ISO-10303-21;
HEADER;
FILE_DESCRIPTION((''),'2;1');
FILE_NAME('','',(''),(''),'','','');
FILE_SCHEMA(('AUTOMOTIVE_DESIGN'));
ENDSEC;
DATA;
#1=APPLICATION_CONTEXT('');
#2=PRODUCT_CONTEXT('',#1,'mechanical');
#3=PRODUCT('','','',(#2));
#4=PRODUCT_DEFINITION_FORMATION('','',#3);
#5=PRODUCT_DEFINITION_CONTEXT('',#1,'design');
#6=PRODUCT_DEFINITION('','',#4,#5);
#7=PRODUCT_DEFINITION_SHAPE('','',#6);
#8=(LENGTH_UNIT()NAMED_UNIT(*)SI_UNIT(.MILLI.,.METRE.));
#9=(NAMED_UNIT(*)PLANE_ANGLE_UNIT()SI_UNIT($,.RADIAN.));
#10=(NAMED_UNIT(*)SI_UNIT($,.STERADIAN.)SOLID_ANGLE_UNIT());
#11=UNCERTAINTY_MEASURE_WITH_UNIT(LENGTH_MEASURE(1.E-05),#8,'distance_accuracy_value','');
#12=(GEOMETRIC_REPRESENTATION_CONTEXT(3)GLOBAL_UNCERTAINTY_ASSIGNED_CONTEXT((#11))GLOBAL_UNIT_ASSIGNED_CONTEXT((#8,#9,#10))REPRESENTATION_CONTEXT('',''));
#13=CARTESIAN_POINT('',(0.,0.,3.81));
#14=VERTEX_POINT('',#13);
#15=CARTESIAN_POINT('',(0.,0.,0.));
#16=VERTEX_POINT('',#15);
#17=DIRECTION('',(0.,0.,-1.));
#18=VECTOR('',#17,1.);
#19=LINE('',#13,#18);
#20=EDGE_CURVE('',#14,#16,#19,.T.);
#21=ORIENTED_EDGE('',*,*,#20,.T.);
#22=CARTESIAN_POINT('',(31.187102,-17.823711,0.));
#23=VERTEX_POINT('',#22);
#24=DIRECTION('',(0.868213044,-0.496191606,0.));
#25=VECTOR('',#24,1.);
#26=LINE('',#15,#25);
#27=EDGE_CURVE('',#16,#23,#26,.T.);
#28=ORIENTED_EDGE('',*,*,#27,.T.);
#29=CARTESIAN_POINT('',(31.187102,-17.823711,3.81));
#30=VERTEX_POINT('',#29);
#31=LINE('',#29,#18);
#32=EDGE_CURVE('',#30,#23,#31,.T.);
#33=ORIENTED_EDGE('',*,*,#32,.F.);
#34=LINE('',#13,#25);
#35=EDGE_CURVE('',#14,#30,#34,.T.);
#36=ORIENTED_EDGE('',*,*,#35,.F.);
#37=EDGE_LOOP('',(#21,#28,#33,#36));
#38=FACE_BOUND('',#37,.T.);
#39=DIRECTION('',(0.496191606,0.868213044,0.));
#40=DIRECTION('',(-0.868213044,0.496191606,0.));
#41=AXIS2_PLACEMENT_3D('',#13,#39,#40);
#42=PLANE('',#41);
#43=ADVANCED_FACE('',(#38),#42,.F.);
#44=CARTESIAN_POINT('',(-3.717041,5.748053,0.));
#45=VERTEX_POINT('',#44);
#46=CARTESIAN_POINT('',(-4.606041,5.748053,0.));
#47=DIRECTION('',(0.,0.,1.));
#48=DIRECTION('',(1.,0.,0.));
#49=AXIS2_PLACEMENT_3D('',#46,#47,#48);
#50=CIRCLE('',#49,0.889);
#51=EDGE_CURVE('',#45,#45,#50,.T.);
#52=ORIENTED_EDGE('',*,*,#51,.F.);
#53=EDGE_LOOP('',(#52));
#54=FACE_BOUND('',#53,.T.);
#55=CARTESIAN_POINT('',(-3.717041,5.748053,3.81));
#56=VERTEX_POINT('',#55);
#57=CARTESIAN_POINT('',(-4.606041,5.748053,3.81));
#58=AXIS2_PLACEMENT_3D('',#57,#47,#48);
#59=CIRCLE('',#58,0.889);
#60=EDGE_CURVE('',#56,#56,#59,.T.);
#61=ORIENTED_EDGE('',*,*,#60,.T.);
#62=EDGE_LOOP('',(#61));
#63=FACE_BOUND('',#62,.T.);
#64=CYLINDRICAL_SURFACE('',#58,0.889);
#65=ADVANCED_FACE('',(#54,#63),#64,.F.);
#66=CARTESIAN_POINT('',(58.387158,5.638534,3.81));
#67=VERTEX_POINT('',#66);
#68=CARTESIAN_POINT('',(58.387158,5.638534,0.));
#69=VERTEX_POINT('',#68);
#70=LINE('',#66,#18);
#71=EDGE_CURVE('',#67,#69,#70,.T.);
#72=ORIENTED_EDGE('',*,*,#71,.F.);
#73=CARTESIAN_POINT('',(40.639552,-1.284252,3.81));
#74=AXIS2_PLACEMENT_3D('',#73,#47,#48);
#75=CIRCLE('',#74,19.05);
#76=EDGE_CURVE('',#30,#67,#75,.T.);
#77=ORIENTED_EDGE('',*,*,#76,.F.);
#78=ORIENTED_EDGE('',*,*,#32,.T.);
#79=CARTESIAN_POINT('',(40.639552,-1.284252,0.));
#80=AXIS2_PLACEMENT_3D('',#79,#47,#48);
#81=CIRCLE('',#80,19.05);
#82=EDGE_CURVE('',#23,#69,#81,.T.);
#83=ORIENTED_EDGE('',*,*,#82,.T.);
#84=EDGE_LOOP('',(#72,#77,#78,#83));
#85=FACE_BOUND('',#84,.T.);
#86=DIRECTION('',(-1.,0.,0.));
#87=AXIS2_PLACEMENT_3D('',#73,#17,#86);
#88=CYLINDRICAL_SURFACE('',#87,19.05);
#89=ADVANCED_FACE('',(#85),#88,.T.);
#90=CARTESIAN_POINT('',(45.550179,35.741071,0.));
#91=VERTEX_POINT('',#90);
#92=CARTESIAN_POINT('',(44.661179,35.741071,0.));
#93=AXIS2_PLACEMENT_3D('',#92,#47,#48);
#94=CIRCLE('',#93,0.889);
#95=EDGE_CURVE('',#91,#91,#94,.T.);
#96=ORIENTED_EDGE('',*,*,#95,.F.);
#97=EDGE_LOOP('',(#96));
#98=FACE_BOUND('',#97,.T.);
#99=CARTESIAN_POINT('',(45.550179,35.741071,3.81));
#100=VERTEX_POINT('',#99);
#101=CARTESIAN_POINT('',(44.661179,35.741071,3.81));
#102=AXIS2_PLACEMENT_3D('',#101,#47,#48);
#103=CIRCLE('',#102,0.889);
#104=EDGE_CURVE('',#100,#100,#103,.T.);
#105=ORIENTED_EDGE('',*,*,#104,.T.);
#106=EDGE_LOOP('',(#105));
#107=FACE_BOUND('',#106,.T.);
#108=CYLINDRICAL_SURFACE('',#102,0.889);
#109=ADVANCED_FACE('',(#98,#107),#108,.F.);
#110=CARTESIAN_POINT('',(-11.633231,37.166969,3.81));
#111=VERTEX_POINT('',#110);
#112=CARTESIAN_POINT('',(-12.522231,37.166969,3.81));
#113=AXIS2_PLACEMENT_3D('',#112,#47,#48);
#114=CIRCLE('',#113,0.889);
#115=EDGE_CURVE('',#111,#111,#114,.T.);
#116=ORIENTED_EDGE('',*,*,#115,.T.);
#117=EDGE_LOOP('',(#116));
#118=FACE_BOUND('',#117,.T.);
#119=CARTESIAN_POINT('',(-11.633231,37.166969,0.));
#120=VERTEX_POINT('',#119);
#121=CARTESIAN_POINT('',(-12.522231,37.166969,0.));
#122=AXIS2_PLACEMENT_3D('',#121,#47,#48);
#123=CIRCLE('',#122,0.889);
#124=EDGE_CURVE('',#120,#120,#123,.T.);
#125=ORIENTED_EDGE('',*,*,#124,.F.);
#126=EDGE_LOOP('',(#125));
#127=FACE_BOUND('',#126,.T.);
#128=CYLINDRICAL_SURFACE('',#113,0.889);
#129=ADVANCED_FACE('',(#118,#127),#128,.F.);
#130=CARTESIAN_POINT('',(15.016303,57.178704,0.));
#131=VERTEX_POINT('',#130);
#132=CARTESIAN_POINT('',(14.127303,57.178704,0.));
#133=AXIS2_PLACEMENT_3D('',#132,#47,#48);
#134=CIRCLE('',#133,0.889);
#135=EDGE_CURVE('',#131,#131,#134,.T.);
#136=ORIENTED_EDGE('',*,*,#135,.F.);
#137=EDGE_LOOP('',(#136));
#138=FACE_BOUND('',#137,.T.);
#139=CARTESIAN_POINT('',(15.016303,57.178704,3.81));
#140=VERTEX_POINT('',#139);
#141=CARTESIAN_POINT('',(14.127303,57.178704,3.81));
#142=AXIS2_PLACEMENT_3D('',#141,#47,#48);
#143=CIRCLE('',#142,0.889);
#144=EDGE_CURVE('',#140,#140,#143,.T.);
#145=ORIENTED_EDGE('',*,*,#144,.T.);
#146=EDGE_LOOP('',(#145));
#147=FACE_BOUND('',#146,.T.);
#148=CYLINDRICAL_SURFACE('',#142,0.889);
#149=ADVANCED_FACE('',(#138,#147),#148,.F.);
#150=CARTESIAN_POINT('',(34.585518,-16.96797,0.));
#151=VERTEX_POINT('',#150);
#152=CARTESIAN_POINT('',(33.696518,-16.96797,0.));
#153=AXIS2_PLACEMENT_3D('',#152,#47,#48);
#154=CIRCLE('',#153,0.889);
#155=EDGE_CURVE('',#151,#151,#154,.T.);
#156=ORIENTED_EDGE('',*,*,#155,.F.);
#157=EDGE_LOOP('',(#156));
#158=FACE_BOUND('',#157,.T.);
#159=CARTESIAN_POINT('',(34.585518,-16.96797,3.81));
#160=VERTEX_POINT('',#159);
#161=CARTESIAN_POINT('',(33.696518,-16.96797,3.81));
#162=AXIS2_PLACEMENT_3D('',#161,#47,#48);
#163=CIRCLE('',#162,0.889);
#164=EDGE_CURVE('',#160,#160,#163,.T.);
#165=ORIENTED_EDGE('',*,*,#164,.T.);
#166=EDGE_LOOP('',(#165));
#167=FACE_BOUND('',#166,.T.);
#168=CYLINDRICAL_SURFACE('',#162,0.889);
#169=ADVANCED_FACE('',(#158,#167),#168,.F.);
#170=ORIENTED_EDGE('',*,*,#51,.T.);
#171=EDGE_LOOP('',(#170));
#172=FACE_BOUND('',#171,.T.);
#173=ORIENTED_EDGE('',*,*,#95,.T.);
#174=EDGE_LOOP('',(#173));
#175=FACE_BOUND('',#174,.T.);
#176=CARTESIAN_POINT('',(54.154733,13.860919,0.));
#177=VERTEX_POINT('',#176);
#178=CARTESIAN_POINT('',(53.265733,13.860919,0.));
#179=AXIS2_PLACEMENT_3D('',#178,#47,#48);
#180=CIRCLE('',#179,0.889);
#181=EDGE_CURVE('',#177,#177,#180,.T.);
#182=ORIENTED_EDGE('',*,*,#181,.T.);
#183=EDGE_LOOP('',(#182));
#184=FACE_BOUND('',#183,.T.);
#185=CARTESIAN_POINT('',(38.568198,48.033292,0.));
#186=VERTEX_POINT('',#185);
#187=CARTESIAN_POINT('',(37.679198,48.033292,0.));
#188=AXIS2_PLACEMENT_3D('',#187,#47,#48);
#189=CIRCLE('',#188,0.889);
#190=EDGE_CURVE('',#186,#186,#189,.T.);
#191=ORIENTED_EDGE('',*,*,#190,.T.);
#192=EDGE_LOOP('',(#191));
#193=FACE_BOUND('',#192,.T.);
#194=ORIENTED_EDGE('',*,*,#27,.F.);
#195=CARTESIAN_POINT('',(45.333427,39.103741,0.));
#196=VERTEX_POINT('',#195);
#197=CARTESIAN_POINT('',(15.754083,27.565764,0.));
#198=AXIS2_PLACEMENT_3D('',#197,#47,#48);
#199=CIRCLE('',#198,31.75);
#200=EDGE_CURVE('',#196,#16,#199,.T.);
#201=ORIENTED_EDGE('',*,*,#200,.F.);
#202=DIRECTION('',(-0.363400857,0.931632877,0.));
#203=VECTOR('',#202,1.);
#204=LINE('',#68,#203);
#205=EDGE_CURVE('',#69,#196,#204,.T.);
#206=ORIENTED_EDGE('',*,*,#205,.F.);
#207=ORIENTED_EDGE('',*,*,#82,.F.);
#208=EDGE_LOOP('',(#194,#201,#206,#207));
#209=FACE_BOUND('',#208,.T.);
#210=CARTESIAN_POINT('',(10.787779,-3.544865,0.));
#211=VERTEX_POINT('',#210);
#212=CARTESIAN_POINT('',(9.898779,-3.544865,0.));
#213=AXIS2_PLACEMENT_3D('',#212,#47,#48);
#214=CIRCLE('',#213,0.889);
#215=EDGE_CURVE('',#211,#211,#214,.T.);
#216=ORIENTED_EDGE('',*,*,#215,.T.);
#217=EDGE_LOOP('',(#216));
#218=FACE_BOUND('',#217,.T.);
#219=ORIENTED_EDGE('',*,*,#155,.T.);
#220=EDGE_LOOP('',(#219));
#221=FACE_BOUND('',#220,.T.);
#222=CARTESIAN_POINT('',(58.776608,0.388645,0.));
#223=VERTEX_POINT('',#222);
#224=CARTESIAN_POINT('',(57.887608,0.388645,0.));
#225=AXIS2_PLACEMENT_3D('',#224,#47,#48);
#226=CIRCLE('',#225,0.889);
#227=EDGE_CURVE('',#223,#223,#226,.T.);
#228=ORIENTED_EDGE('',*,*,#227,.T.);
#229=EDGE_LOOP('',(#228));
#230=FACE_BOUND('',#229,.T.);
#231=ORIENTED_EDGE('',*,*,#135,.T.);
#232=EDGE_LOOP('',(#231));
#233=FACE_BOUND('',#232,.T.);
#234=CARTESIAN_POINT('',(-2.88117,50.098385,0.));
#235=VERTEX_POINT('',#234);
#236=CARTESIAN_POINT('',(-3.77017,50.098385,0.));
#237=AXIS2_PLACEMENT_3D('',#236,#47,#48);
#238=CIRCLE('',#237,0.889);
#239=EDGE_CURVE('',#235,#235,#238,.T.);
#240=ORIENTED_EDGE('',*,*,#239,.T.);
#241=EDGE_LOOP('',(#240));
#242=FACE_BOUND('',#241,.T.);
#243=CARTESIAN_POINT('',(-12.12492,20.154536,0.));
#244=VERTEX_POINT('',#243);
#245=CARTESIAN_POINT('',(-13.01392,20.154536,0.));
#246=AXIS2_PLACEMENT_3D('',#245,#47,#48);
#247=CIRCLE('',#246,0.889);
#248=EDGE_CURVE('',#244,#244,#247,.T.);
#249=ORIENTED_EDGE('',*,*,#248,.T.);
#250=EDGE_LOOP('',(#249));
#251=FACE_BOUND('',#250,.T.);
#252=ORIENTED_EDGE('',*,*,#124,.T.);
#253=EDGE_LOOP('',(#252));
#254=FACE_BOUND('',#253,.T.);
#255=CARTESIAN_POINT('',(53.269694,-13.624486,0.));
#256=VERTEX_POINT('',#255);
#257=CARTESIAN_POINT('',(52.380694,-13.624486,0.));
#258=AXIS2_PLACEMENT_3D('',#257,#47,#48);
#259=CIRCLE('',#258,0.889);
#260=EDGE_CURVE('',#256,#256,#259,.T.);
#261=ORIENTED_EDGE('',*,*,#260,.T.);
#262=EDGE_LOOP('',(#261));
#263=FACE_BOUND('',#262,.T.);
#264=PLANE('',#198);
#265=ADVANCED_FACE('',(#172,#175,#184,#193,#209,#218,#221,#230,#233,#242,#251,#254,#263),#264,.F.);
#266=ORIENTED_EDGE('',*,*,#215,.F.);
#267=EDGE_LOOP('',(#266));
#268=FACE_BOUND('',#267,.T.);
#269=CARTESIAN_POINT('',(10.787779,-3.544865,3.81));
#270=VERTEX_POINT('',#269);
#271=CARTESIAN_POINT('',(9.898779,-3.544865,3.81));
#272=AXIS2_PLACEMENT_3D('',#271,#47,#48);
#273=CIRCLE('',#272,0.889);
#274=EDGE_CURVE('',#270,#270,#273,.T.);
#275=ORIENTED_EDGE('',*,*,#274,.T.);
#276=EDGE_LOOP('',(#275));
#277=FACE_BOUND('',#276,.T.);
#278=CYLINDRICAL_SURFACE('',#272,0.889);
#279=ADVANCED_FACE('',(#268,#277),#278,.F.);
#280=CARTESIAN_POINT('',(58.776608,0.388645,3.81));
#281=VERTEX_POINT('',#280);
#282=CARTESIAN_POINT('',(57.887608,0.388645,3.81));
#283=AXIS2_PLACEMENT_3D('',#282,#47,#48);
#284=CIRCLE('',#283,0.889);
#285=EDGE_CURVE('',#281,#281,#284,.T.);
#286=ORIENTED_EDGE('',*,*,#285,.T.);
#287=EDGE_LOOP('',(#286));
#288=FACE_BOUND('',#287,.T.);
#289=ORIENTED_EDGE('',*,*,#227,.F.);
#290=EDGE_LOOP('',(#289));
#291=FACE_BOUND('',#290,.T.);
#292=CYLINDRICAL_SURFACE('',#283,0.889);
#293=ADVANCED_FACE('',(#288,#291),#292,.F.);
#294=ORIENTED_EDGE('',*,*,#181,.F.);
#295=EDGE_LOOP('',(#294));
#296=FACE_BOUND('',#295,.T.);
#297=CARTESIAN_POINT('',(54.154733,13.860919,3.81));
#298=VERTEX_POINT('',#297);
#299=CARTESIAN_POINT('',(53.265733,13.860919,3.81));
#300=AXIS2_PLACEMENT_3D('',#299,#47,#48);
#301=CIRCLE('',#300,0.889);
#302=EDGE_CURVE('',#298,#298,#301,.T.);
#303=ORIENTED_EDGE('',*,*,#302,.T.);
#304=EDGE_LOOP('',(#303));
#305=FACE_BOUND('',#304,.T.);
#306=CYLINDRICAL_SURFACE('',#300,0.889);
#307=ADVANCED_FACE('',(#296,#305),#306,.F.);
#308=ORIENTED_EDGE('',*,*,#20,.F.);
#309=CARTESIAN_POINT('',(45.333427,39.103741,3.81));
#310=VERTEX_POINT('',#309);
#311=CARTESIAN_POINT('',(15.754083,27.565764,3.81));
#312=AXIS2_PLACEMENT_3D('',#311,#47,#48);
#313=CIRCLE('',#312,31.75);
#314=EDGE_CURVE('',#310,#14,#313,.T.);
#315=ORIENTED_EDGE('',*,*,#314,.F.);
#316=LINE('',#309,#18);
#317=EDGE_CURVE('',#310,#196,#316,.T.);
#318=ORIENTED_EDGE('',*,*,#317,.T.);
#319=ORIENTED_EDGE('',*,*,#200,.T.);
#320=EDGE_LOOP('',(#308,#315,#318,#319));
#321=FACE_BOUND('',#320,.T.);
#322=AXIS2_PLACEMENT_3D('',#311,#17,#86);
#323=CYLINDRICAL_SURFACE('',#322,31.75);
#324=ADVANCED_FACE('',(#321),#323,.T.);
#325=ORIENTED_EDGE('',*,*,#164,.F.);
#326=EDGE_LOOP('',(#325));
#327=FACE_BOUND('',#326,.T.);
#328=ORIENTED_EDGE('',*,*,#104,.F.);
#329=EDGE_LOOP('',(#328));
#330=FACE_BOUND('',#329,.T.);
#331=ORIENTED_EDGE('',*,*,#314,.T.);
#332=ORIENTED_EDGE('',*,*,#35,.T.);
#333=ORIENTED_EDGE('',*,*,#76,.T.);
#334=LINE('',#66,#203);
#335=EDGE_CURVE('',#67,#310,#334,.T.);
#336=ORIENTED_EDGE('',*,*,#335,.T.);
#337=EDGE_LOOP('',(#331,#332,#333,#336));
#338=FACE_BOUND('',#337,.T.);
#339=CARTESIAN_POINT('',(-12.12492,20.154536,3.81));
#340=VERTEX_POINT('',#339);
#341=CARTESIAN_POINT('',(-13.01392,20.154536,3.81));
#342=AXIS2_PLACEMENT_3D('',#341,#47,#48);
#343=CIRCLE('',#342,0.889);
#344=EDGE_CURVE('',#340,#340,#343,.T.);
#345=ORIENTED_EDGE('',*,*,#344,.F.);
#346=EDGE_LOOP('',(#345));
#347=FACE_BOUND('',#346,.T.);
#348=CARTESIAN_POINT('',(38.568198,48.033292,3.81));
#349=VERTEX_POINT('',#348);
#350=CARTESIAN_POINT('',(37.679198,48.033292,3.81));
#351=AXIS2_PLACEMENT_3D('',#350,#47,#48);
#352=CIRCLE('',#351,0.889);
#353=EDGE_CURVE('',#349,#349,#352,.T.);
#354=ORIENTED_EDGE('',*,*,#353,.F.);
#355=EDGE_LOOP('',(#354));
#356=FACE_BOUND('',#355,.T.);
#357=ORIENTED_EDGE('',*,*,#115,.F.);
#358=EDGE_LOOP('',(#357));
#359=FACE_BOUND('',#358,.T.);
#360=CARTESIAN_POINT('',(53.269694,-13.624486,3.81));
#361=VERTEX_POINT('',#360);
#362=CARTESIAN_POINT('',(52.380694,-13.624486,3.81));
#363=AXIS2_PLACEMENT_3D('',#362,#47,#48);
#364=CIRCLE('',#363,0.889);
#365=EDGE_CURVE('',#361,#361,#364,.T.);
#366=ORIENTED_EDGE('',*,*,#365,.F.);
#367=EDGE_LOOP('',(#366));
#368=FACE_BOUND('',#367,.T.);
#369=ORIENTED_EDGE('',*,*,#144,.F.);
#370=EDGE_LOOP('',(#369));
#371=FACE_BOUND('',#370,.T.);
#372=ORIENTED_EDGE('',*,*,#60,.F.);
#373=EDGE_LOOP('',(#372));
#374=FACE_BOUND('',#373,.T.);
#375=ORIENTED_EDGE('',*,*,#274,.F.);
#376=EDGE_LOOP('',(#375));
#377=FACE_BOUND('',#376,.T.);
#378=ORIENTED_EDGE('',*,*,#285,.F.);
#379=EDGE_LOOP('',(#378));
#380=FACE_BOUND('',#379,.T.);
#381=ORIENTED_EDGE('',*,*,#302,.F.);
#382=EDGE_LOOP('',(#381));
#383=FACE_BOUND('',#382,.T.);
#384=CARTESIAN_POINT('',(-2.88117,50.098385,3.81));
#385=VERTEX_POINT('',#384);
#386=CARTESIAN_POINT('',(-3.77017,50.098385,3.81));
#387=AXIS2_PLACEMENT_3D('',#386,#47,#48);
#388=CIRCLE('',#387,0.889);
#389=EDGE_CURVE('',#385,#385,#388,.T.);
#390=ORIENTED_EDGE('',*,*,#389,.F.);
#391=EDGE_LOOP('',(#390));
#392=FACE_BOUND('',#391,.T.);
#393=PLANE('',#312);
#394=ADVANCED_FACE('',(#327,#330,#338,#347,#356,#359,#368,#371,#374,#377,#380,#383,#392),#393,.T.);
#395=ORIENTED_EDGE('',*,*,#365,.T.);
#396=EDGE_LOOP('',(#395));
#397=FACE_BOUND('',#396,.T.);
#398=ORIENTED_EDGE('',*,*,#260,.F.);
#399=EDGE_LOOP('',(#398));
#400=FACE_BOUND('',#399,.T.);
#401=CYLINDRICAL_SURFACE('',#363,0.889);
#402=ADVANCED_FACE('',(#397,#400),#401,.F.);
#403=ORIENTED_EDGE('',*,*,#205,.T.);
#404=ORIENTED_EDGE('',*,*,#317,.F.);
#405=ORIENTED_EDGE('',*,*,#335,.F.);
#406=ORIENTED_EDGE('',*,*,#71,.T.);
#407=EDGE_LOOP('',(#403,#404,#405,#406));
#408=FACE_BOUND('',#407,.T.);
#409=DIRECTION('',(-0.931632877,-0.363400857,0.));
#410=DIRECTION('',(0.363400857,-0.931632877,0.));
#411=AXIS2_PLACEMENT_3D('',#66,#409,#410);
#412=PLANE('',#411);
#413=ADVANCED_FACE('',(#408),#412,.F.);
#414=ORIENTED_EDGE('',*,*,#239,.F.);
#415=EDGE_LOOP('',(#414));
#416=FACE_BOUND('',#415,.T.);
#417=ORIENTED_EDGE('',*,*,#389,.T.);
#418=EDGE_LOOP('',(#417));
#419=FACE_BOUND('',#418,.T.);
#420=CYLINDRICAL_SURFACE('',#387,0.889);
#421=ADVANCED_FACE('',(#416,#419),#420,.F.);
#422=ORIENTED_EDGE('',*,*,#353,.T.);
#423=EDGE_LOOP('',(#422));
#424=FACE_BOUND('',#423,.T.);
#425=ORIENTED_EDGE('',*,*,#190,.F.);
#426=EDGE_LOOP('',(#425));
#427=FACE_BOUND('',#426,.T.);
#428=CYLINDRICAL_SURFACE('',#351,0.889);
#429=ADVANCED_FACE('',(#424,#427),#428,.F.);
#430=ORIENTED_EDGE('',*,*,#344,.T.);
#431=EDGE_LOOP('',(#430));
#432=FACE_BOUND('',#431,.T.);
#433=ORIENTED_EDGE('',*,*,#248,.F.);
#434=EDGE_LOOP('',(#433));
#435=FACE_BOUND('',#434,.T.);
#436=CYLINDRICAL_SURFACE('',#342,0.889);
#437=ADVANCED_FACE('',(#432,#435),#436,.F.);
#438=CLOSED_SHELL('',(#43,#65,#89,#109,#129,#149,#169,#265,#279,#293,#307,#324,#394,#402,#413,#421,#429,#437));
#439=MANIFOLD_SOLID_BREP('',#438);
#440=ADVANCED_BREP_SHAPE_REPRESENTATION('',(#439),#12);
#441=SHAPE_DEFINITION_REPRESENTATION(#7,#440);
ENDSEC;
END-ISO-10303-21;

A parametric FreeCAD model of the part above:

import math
import FreeCAD as App
import Part
import Sketcher

V = App.Vector
Q = App.Units.Quantity

doc = App.newDocument("Part")
body = doc.addObject("PartDesign::Body", "Body")

sketch1 = doc.addObject("Sketcher::SketchObject", "Sketch")
body.addObject(sketch1)
sketch1.AttachmentSupport = (doc.XY_Plane, [""])
sketch1.MapMode = "FlatFace"
sketch1.addGeometry([
    Part.LineSegment(V(0, 0, 0), V(31, -18, 0)),
    Part.ArcOfCircle(Part.Circle(V(41, -1, 0), V(0, 0, 1), 19), math.radians(-120), math.radians(21)),
    Part.LineSegment(V(58, 6, 0), V(45, 39, 0)),
    Part.ArcOfCircle(Part.Circle(V(16, 28, 0), V(0, 0, 1), 32), math.radians(21), math.radians(240)),
], False)
sketch1.addConstraint([
    Sketcher.Constraint("Tangent", 0, 2, 1, 1),
    Sketcher.Constraint("Tangent", 1, 2, 2, 1),
    Sketcher.Constraint("Tangent", 2, 2, 3, 1),
    Sketcher.Constraint("Tangent", 3, 2, 0, 1),
    Sketcher.Constraint("Coincident", 3, 2, -1, 1),
    Sketcher.Constraint("Radius", 1, Q("0.75 in")),
    Sketcher.Constraint("Radius", 3, Q("1.25 in")),
    Sketcher.Constraint("DistanceY", 0, 2, -1, 1, Q("17.823711 mm")),
    Sketcher.Constraint("DistanceX", -1, 1, 1, 2, Q("58.387158 mm")),
])
pad1 = doc.addObject("PartDesign::Pad", "Pad")
body.addObject(pad1)
pad1.Profile = sketch1
pad1.Length = Q("0.15 in")

sketch2 = doc.addObject("Sketcher::SketchObject", "Sketch001")
body.addObject(sketch2)
sketch2.AttachmentSupport = (doc.XY_Plane, [""])
sketch2.MapMode = "FlatFace"
sketch2.AttachmentOffset = App.Placement(V(0, 0, 0.15 * 25.4), App.Rotation())
sketch2.addGeometry([
    Part.Circle(V(-3.8, 50.1, 0), V(0, 0, 1), 0.9),
    Part.Circle(V(14.1, 57.2, 0), V(0, 0, 1), 0.9),
    Part.Circle(V(37.7, 48, 0), V(0, 0, 1), 0.9),
    Part.Circle(V(57.9, 0.4, 0), V(0, 0, 1), 0.9),
    Part.Circle(V(52.4, -13.6, 0), V(0, 0, 1), 0.9),
    Part.Circle(V(33.7, -17, 0), V(0, 0, 1), 0.9),
    Part.Circle(V(9.9, -3.5, 0), V(0, 0, 1), 0.9),
    Part.Circle(V(-4.6, 5.7, 0), V(0, 0, 1), 0.9),
    Part.Circle(V(-13, 20.2, 0), V(0, 0, 1), 0.9),
    Part.Circle(V(-12.5, 37.2, 0), V(0, 0, 1), 0.9),
    Part.Circle(V(44.7, 35.7, 0), V(0, 0, 1), 0.9),
    Part.Circle(V(53.3, 13.9, 0), V(0, 0, 1), 0.9),
], False)
sketch2.addConstraint([
    Sketcher.Constraint("Equal", 0, 1),
    Sketcher.Constraint("Equal", 1, 2),
    Sketcher.Constraint("Equal", 2, 3),
    Sketcher.Constraint("Equal", 3, 4),
    Sketcher.Constraint("Equal", 4, 5),
    Sketcher.Constraint("Equal", 5, 6),
    Sketcher.Constraint("Equal", 6, 7),
    Sketcher.Constraint("Equal", 7, 8),
    Sketcher.Constraint("Equal", 8, 9),
    Sketcher.Constraint("Equal", 9, 10),
    Sketcher.Constraint("Equal", 10, 11),
    Sketcher.Constraint("Diameter", 0, Q("0.07 in")),
    Sketcher.Constraint("DistanceX", 8, 3, 6, 3, Q("22.912699 mm")),
    Sketcher.Constraint("DistanceY", 6, 3, 8, 3, Q("23.699401 mm")),
    Sketcher.Constraint("DistanceX", 0, 3, -1, 1, Q("3.77017 mm")),
    Sketcher.Constraint("DistanceY", -1, 1, 2, 3, Q("48.033292 mm")),
    Sketcher.Constraint("DistanceX", -1, 1, 3, 3, Q("57.887608 mm")),
    Sketcher.Constraint("DistanceX", -1, 1, 5, 3, Q("33.696518 mm")),
    Sketcher.Constraint("DistanceY", 5, 3, -1, 1, Q("16.96797 mm")),
    Sketcher.Constraint("DistanceX", -1, 1, 6, 3, Q("9.898779 mm")),
    Sketcher.Constraint("DistanceX", 7, 3, -1, 1, Q("4.606041 mm")),
    Sketcher.Constraint("DistanceX", 9, 3, -1, 1, Q("12.522231 mm")),
    Sketcher.Constraint("DistanceY", -1, 1, 9, 3, Q("37.166969 mm")),
    Sketcher.Constraint("DistanceX", -1, 1, 10, 3, Q("44.661179 mm")),
    Sketcher.Constraint("DistanceY", -1, 1, 10, 3, Q("35.741071 mm")),
    Sketcher.Constraint("DistanceY", -1, 1, 11, 3, Q("13.860919 mm")),
    Sketcher.Constraint("DistanceY", 0, 3, 1, 3, Q("7.080319 mm")),
    Sketcher.Constraint("DistanceX", 2, 3, 3, 3, Q("20.208411 mm")),
    Sketcher.Constraint("DistanceY", 3, 3, 1, 3, Q("56.790059 mm")),
    Sketcher.Constraint("DistanceY", 4, 3, 3, 3, Q("14.013131 mm")),
    Sketcher.Constraint("DistanceY", 4, 3, 2, 3, Q("61.657778 mm")),
    Sketcher.Constraint("DistanceX", 1, 3, 4, 3, Q("38.25339 mm")),
    Sketcher.Constraint("DistanceY", 4, 3, 6, 3, Q("10.079621 mm")),
    Sketcher.Constraint("DistanceY", 6, 3, 7, 3, Q("9.292919 mm")),
    Sketcher.Constraint("DistanceX", 4, 3, 11, 3, Q("0.88504 mm")),
    Sketcher.Constraint("DistanceX", -1, 1, 1, 3, Q("14.127303 mm")),
])
doc.recompute()
hole = doc.addObject("PartDesign::Hole", "Hole")
body.addObject(hole)
hole.Profile = sketch2
hole.ThreadType = "None"
hole.Diameter = Q("0.07 in")
hole.DepthType = "ThroughAll"

doc.recompute()
